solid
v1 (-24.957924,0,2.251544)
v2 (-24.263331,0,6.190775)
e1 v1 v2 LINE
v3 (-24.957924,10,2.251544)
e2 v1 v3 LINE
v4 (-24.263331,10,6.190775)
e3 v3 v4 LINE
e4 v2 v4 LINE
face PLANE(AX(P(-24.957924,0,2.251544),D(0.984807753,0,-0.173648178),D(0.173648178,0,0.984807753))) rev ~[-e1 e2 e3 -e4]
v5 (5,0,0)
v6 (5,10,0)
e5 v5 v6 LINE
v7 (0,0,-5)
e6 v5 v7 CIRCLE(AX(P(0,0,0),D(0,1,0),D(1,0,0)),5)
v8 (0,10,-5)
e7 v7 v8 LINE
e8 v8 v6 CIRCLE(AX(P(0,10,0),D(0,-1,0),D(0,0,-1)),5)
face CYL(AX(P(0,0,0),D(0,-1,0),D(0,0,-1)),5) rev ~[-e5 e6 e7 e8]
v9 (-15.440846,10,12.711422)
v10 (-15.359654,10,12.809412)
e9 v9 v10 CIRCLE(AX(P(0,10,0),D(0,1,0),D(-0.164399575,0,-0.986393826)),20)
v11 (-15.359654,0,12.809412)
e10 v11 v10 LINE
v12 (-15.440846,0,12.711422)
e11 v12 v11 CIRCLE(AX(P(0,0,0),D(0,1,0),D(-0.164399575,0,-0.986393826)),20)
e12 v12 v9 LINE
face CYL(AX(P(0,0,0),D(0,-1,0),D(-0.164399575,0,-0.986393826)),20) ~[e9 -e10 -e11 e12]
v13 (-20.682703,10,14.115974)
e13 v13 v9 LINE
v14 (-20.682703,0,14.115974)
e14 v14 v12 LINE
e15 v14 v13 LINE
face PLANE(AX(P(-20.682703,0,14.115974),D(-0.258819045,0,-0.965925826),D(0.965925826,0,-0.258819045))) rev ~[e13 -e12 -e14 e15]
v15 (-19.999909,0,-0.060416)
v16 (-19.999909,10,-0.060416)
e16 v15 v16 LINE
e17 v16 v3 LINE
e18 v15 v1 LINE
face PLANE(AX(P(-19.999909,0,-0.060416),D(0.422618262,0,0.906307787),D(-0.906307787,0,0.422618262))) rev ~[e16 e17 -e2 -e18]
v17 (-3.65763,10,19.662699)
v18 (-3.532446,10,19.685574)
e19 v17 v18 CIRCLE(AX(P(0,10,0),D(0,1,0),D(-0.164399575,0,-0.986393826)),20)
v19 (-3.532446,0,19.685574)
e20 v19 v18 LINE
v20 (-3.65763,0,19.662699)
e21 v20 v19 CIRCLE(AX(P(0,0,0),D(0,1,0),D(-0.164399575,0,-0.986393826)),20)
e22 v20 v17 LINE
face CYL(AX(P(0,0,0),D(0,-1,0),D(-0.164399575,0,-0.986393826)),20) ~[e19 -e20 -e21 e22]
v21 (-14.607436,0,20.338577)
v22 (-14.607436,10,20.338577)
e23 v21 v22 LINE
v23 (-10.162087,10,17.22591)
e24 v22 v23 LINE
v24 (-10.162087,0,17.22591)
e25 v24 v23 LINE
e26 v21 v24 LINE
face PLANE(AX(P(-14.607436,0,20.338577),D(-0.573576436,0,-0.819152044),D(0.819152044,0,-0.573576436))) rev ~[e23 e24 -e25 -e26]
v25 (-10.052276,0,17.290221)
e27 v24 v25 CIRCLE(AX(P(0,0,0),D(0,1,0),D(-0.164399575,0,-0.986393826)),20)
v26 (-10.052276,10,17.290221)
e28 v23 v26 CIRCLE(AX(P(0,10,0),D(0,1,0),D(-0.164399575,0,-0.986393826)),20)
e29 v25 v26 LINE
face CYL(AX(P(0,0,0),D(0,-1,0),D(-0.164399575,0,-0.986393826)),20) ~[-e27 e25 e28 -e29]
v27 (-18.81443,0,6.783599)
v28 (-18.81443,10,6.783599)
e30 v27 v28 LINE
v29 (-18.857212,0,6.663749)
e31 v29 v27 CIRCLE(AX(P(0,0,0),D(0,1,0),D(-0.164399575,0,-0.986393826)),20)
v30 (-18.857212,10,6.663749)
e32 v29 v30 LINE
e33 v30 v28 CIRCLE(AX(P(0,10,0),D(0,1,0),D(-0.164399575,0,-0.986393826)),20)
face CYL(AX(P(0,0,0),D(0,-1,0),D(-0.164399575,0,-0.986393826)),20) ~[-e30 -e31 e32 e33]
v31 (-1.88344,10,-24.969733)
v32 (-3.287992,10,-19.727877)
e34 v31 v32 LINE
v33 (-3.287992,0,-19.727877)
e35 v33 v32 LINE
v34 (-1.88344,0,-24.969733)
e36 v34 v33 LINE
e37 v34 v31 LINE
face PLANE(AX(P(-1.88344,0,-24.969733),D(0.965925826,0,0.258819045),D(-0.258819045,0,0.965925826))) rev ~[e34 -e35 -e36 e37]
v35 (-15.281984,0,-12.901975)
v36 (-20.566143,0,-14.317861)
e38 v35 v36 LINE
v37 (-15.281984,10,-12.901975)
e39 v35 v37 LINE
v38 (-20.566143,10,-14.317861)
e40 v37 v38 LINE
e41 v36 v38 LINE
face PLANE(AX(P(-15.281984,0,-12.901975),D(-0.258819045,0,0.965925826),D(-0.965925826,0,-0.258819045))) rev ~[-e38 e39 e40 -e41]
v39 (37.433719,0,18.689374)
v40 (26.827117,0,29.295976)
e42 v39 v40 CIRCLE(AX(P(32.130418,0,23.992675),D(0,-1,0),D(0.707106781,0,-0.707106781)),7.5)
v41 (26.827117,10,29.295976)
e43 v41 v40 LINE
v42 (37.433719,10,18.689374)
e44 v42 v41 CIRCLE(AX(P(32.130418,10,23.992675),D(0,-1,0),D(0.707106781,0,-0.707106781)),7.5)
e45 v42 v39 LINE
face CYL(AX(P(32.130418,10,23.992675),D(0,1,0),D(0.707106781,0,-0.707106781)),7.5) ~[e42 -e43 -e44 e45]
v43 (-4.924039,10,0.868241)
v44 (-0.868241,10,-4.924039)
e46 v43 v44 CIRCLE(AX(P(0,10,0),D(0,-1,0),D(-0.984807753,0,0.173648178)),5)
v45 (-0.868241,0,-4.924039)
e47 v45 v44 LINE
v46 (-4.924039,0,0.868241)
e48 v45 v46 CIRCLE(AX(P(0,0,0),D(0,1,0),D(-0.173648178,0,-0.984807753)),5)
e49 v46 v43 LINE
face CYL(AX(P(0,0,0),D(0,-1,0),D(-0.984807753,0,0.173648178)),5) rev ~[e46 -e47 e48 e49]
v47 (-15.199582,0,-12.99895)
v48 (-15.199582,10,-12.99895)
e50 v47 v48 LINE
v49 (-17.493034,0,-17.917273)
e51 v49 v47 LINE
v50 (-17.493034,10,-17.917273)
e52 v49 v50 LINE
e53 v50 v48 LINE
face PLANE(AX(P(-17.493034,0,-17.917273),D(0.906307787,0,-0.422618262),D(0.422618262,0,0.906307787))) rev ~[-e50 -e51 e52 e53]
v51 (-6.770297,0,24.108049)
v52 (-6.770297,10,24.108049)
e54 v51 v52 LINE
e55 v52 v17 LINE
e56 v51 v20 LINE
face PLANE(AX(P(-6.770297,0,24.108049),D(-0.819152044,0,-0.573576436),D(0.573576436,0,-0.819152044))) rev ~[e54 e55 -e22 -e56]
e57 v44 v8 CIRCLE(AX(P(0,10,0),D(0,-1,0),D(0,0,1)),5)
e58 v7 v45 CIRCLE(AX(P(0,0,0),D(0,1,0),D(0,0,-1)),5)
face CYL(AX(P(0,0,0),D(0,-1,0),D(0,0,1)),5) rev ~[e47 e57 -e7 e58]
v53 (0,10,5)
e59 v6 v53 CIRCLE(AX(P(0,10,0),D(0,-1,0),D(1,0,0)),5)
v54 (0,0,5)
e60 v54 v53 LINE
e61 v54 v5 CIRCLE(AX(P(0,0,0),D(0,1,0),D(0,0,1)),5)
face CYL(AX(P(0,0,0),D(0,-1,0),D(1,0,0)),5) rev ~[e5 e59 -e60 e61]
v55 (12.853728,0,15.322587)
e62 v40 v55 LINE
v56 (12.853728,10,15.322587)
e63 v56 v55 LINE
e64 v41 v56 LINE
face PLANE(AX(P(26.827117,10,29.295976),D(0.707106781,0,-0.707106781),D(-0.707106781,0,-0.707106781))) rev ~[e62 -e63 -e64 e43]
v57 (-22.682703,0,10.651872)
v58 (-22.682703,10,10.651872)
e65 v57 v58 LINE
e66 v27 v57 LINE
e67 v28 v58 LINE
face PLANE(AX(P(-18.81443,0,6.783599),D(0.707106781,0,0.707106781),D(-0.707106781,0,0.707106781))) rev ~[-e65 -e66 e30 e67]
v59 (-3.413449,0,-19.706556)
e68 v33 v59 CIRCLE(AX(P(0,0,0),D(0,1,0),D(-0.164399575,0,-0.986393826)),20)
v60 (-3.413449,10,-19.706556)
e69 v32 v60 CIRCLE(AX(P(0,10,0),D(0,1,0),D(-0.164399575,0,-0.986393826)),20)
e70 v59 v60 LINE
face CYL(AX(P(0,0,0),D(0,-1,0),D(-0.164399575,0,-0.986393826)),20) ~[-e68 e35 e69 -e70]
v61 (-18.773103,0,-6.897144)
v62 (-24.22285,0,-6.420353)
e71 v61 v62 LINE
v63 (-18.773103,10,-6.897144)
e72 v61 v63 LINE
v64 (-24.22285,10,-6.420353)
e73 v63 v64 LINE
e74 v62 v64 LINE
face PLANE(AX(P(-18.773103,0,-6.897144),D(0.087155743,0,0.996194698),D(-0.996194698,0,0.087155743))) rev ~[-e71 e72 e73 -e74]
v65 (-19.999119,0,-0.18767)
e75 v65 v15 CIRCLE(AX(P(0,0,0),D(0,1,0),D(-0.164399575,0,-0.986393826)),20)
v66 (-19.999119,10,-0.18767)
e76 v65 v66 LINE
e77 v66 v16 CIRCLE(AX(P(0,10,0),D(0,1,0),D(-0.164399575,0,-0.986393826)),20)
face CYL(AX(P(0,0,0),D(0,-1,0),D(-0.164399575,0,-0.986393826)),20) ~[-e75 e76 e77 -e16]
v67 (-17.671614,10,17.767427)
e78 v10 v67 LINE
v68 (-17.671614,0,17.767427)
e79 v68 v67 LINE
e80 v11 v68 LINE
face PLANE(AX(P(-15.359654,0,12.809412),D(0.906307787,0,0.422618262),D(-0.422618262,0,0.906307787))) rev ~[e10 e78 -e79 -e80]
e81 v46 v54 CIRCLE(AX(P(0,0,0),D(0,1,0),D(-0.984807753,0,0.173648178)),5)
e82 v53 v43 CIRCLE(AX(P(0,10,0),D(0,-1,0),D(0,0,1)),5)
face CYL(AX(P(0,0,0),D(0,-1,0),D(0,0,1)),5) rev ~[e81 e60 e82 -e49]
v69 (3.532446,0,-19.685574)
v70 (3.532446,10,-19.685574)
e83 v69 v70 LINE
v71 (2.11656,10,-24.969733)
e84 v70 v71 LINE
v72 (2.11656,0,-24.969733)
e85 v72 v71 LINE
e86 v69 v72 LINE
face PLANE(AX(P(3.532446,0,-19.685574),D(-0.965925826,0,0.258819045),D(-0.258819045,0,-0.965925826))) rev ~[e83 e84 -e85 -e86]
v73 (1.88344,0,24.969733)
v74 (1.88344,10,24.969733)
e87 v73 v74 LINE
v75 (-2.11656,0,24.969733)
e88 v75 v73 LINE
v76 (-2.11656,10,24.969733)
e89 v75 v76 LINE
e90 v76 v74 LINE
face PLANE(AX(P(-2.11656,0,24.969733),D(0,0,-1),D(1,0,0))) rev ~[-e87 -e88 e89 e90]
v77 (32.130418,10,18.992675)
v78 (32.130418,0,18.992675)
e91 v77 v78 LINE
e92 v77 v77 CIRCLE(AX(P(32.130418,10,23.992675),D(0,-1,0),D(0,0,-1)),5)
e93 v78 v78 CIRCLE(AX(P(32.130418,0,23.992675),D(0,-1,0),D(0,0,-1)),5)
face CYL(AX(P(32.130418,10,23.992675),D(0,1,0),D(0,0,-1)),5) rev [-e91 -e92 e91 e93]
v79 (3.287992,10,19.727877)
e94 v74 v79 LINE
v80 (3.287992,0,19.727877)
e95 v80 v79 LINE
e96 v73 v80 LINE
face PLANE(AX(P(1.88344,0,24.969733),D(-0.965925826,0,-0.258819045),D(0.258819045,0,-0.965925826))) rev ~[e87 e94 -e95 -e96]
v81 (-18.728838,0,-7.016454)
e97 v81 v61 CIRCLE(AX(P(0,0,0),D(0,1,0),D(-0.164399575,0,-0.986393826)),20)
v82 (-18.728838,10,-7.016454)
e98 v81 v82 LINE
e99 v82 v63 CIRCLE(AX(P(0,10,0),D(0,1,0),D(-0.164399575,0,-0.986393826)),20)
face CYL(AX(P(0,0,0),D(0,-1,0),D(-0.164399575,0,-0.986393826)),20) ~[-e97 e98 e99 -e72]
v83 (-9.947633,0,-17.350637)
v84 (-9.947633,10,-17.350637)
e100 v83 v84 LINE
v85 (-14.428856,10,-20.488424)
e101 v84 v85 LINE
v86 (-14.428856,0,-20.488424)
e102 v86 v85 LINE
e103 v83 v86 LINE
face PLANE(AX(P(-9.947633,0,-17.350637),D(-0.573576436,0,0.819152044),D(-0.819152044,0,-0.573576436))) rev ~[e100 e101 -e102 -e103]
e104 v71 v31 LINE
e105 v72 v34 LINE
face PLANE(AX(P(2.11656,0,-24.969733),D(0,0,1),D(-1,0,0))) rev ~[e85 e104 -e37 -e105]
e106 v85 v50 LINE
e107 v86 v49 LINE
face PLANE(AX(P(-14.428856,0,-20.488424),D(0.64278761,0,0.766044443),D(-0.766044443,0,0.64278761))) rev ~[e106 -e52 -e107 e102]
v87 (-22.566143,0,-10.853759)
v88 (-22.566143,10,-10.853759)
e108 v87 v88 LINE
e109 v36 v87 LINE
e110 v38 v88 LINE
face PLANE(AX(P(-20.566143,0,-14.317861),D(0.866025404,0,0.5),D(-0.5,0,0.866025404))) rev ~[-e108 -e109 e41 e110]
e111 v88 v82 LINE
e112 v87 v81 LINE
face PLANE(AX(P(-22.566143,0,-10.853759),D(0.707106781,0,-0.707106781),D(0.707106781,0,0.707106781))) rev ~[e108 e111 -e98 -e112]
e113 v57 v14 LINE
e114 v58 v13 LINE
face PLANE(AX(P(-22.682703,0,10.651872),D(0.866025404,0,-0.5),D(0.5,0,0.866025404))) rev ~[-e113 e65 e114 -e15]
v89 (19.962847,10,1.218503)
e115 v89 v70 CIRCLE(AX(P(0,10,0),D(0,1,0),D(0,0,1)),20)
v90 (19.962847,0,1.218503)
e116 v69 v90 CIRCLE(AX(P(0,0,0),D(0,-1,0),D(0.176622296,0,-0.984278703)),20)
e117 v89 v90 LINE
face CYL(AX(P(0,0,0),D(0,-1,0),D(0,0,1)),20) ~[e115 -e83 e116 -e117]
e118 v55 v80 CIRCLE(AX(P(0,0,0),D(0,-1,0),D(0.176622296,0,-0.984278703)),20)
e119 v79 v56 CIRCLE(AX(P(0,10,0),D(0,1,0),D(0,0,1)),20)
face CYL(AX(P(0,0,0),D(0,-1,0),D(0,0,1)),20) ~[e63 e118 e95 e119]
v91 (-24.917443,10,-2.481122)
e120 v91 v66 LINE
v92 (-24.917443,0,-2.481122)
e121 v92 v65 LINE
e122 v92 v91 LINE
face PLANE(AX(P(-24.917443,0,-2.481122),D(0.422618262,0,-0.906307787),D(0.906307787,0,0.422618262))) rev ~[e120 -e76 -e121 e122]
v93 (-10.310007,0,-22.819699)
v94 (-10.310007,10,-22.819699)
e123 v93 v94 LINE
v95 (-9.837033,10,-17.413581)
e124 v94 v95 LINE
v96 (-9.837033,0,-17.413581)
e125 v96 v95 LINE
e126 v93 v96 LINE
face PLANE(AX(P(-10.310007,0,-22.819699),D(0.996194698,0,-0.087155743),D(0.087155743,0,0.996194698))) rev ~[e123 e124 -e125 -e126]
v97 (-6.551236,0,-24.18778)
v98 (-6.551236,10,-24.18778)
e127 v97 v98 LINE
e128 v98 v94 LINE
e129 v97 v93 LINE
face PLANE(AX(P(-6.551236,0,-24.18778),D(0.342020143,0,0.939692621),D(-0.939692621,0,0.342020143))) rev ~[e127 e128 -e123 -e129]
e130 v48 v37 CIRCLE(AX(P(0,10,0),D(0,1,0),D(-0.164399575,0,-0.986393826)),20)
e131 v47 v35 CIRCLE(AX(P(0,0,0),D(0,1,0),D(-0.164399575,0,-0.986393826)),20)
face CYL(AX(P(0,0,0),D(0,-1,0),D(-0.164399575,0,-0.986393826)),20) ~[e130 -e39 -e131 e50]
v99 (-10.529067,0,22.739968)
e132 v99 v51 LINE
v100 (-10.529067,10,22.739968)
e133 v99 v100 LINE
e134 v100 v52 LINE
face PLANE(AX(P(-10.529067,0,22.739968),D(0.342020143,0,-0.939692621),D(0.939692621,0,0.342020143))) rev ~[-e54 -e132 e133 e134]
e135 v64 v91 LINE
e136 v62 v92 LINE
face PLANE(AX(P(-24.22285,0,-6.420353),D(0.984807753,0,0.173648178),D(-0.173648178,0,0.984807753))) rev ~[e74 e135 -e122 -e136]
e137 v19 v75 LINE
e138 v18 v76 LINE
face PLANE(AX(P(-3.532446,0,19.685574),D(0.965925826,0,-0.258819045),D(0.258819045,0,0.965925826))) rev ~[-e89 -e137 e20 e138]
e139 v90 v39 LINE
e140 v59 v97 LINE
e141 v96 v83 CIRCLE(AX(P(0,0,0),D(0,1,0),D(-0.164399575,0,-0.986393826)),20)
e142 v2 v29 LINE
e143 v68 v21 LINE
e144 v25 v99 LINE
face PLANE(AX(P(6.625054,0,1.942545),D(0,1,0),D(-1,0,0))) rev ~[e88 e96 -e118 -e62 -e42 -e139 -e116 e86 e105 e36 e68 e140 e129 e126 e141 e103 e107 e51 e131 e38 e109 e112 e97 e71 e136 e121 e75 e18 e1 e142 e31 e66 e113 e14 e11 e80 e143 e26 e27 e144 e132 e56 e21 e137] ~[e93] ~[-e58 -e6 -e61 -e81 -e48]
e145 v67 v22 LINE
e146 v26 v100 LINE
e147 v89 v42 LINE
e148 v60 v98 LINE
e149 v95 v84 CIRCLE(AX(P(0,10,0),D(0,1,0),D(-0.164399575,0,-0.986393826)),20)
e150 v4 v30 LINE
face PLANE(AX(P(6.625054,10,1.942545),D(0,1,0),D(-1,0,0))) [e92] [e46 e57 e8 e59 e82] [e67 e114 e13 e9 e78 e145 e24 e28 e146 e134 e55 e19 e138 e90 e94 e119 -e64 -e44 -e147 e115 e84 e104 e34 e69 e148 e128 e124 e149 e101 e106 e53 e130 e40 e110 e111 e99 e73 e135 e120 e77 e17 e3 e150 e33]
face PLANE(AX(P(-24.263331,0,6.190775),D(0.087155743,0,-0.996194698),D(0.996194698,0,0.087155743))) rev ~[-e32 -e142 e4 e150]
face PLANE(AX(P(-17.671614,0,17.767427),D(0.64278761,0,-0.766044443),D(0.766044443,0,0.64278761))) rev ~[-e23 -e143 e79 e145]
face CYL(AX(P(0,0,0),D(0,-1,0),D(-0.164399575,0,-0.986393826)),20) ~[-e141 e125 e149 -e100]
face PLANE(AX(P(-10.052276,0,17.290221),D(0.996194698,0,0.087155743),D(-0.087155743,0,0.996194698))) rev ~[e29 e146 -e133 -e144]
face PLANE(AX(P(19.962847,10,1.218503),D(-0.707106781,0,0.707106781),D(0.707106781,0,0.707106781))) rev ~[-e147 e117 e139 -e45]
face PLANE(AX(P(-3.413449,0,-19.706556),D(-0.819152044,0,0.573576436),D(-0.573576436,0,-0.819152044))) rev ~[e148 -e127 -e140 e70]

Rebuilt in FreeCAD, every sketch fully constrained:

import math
import FreeCAD as App
import Part
import Sketcher

V = App.Vector
Q = App.Units.Quantity

doc = App.newDocument("Part")
body = doc.addObject("PartDesign::Body", "Body")

# Sketch on XZ plane
sketch1 = body.newObject("Sketcher::SketchObject", "Sketch")
sketch1.AttachmentSupport = (doc.getObject("XZ_Plane"), [""])
sketch1.MapMode = "FlatFace"
sketch1.addGeometry([
    Part.LineSegment(V(-1.88344, -24.969733, 0), V(-3.287992, -19.727877, 0)),  # 0
    Part.ArcOfCircle(Part.Circle(V(0, 0, 0), V(0, 0, 1), 20), math.radians(90), math.radians(260.537644)),  # 1
    Part.ArcOfCircle(Part.Circle(V(0, 0, 0), V(0, 0, 1), 20), math.radians(-79.82692), math.radians(90)),  # 2
    Part.LineSegment(V(3.532446, -19.685574, 0), V(2.11656, -24.969733, 0)),  # 3
    Part.LineSegment(V(2.11656, -24.969733, 0), V(-1.88344, -24.969733, 0)),  # 4
    Part.ArcOfCircle(Part.Circle(V(0, 0, 0), V(0, 0, 1), 5), math.radians(90), math.radians(270)),  # 5
    Part.ArcOfCircle(Part.Circle(V(0, 0, 0), V(0, 0, 1), 5), math.radians(-90), math.radians(0)),  # 6
    Part.ArcOfCircle(Part.Circle(V(0, 0, 0), V(0, 0, 1), 5), math.radians(0), math.radians(90)),  # 7
], False)
sketch1.addConstraint([
    Sketcher.Constraint("Coincident", 0, 2, 1, 2),
    Sketcher.Constraint("Tangent", 1, 1, 2, 2),
    Sketcher.Constraint("Coincident", 2, 1, 3, 1),
    Sketcher.Constraint("Coincident", 3, 2, 4, 1),
    Sketcher.Constraint("Coincident", 4, 2, 0, 1),
    Sketcher.Constraint("Tangent", 5, 2, 6, 1),
    Sketcher.Constraint("Tangent", 6, 2, 7, 1),
    Sketcher.Constraint("Tangent", 7, 2, 5, 1),
    Sketcher.Constraint("Horizontal", 4),
    Sketcher.Constraint("Coincident", 1, 3, -1, 1),
    Sketcher.Constraint("Coincident", 5, 3, -1, 1),
    Sketcher.Constraint("Equal", 1, 2),
    Sketcher.Constraint("PointOnObject", 1, 1, -2),
    Sketcher.Constraint("PointOnObject", 5, 2, -2),
    Sketcher.Constraint("PointOnObject", 6, 2, -1),
    Sketcher.Constraint("PointOnObject", 7, 2, -2),
    Sketcher.Constraint("Radius", 1, Q("20 mm")),
    Sketcher.Constraint("Radius", 5, Q("5 mm")),
    Sketcher.Constraint("DistanceX", 4, 2, 4, 1, Q("4 mm")),
    Sketcher.Constraint("Angle", 0, Q("105 deg")),
    Sketcher.Constraint("Angle", 3, Q("-105 deg")),
    Sketcher.Constraint("Distance", 0, Q("5.426769 mm")),
    Sketcher.Constraint("DistanceX", 0, 2, -1, 1, Q("3.287992 mm")),
])
pad1 = body.newObject("PartDesign::Pad", "Pad")
pad1.Profile = sketch1
pad1.Length = 10
pad1.Reversed = True
doc.recompute()

polarpattern = body.newObject("PartDesign::PolarPattern", "PolarPattern")
polarpattern.Originals = [pad1]
polarpattern.Axis = (doc.getObject("Y_Axis"), [""])
polarpattern.Angle = 180
polarpattern.Occurrences = 10
body.Tip = polarpattern

# Sketch on XZ plane
sketch2 = body.newObject("Sketcher::SketchObject", "Sketch001")
sketch2.AttachmentSupport = (doc.getObject("XZ_Plane"), [""])
sketch2.MapMode = "FlatFace"
sketch2.AttachmentOffset = App.Placement(V(0, 0, -10), App.Rotation())
sketch2.addGeometry([
    Part.LineSegment(V(26.827117, 29.295976, 0), V(12.853728, 15.322587, 0)),  # 0
    Part.ArcOfCircle(Part.Circle(V(0, 0, 0), V(0, 0, 1), 20), math.radians(3.492916), math.radians(50.00757)),  # 1
    Part.LineSegment(V(19.962847, 1.218503, 0), V(37.433719, 18.689374, 0)),  # 2
    Part.ArcOfCircle(Part.Circle(V(32.130418, 23.992675, 0), V(0, 0, 1), 7.5), math.radians(-45), math.radians(135)),  # 3
    Part.Circle(V(32.130418, 23.992675, 0), V(0, 0, 1), 5),  # 4
], False)
sketch2.addConstraint([
    Sketcher.Constraint("Coincident", 0, 2, 1, 2),
    Sketcher.Constraint("Coincident", 1, 1, 2, 1),
    Sketcher.Constraint("Tangent", 2, 2, 3, 1),
    Sketcher.Constraint("Tangent", 3, 2, 0, 1),
    Sketcher.Constraint("Coincident", 1, 3, -1, 1),
    Sketcher.Constraint("Coincident", 4, 3, 3, 3),
    Sketcher.Constraint("Parallel", 0, 2),
    Sketcher.Constraint("Diameter", 4, Q("10 mm")),
    Sketcher.Constraint("Radius", 1, Q("20 mm")),
    Sketcher.Constraint("Radius", 3, Q("7.5 mm")),
    Sketcher.Constraint("Angle", 0, Q("-135 deg")),
    Sketcher.Constraint("DistanceX", -1, 1, 2, 2, Q("37.433719 mm")),
    Sketcher.Constraint("DistanceX", 0, 2, 3, 3, Q("19.27669 mm")),
])
pad2 = body.newObject("PartDesign::Pad", "Pad001")
pad2.Profile = sketch2
pad2.Length = 10

doc.recompute()
